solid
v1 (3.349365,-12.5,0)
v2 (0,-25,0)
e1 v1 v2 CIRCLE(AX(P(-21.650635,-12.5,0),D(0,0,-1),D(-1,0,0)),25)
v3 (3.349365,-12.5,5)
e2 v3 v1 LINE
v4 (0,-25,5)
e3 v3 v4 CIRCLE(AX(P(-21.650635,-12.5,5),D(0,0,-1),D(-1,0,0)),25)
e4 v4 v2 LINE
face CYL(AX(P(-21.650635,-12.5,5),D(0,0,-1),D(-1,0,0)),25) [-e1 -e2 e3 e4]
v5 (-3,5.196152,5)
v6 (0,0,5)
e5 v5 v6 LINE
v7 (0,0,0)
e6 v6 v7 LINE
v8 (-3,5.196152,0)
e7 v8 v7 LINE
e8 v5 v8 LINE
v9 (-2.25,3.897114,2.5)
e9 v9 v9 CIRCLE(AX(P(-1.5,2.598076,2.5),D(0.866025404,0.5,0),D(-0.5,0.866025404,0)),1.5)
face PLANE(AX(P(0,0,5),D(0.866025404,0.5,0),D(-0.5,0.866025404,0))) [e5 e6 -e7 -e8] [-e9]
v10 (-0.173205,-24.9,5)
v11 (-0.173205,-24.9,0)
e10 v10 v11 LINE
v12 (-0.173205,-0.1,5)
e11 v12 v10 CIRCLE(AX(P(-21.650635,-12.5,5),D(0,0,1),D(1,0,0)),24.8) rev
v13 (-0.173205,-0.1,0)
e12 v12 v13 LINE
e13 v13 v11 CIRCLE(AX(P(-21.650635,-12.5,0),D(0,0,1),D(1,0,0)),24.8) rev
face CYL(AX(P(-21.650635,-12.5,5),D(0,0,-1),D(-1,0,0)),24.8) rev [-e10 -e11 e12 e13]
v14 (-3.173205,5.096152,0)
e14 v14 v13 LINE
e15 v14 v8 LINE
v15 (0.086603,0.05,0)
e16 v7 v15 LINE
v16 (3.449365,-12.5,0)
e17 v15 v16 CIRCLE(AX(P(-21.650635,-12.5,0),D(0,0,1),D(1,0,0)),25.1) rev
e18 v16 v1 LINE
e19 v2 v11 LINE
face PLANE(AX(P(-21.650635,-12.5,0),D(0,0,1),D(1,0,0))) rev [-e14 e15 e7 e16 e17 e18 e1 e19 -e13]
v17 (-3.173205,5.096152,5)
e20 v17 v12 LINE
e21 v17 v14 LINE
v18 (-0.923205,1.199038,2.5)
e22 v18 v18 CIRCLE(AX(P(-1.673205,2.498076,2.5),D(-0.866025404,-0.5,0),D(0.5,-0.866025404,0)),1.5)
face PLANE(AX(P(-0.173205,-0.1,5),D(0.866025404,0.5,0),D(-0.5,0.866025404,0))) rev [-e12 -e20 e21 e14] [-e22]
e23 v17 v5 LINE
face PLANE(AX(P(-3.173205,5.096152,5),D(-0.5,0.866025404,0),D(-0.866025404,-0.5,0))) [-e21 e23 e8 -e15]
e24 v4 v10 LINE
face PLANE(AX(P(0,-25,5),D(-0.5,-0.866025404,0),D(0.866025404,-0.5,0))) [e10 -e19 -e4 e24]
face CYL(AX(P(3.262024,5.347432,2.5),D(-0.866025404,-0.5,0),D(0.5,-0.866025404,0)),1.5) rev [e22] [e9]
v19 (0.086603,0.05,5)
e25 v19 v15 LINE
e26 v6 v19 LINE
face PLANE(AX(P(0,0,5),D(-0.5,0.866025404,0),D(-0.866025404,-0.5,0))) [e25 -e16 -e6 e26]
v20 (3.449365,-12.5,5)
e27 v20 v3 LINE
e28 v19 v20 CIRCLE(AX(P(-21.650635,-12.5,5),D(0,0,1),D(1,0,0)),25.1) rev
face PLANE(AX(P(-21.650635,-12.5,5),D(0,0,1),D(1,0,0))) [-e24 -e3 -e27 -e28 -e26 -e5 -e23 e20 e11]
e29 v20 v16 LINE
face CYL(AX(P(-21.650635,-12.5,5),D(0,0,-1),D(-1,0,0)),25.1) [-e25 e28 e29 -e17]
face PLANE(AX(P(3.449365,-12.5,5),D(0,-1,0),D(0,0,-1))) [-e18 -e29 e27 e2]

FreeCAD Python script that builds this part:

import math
import FreeCAD as App
import Part
import Sketcher
Q = App.Units.Quantity

doc = App.newDocument("Part")
body = doc.addObject("PartDesign::Body", "Body")

# Sketch on XY plane
sketch1 = body.newObject("Sketcher::SketchObject", "Sketch")
sketch1.AttachmentSupport = (doc.getObject("XY_Plane"), [""])
sketch1.MapMode = "FlatFace"
sketch1.addGeometry([
    Part.ArcOfCircle(Part.Circle(App.Vector(-21.65, -12.5, 0), App.Vector(0, 0, 1), 25), math.radians(-30), math.radians(30)),  # 0
    Part.LineSegment(App.Vector(0, 0, 0), App.Vector(-3, 5.2, 0)),  # 1
    Part.LineSegment(App.Vector(-3, 5.2, 0), App.Vector(-3.17, 5.1, 0)),  # 2
    Part.LineSegment(App.Vector(-3.17, 5.1, 0), App.Vector(-0.17, -0.1, 0)),  # 3
    Part.ArcOfCircle(Part.Circle(App.Vector(-21.65, -12.5, 0), App.Vector(0, 0, 1), 24.8), math.radians(-30), math.radians(30)),  # 4
    Part.LineSegment(App.Vector(-0.17, -24.9, 0), App.Vector(0, -25, 0)),  # 5
], False)
sketch1.addConstraint([
    Sketcher.Constraint("Tangent", 0, 2, 1, 1),
    Sketcher.Constraint("Coincident", 1, 2, 2, 1),
    Sketcher.Constraint("Coincident", 2, 2, 3, 1),
    Sketcher.Constraint("Tangent", 3, 2, 4, 2),
    Sketcher.Constraint("Coincident", 4, 1, 5, 1),
    Sketcher.Constraint("Coincident", 5, 2, 0, 1),
    Sketcher.Constraint("Coincident", 0, 2, -1, 1),
    Sketcher.Constraint("Coincident", 4, 3, 0, 3),
    Sketcher.Constraint("PointOnObject", 5, 2, -2),
    Sketcher.Constraint("Perpendicular", 1, 2),
    Sketcher.Constraint("Perpendicular", 2, 3),
    Sketcher.Constraint("Vertical", 3, 2, 4, 1),
    Sketcher.Constraint("Radius", 0, Q("25 mm")),
    Sketcher.Constraint("Radius", 4, Q("24.8 mm")),
    Sketcher.Constraint("Angle", 1, Q("120 deg")),
    Sketcher.Constraint("Distance", 1, Q("6 mm")),
])
pad1 = body.newObject("PartDesign::Pad", "Pad")
pad1.Profile = sketch1
pad1.Length = 5

# Sketch on an angled plane
sketch2 = body.newObject("Sketcher::SketchObject", "Sketch001")
sketch2.Placement = App.Placement(App.Vector(-0.173205, -0.1, 0), App.Rotation(App.Vector(0, 0, 1), App.Vector(-0.5, 0.866025404, 0), App.Vector(-0.866025404, -0.5, 0), "ZXY"))
sketch2.addGeometry(Part.Circle(App.Vector(2.5, 3, 0), App.Vector(0, 0, 1), 1.5), False)
sketch2.addConstraint([
    Sketcher.Constraint("Diameter", 0, Q("3 mm")),
    Sketcher.Constraint("DistanceY", -1, 1, 0, 3, Q("3 mm")),
    Sketcher.Constraint("DistanceX", -1, 1, 0, 3, Q("2.5 mm")),
])
pocket1 = body.newObject("PartDesign::Pocket", "Pocket")
pocket1.Profile = sketch2
pocket1.Type = "ThroughAll"

# Sketch on XY plane
sketch3 = body.newObject("Sketcher::SketchObject", "Sketch002")
sketch3.AttachmentSupport = (doc.getObject("XY_Plane"), [""])
sketch3.MapMode = "FlatFace"
sketch3.addGeometry([
    Part.ArcOfCircle(Part.Circle(App.Vector(-21.65, -12.5, 0), App.Vector(0, 0, 1), 25), math.radians(0), math.radians(30)),
    Part.LineSegment(App.Vector(3.35, -12.5, 0), App.Vector(3.45, -12.5, 0)),
    Part.ArcOfCircle(Part.Circle(App.Vector(-21.65, -12.5, 0), App.Vector(0, 0, 1), 25.1), math.radians(0), math.radians(30)),
    Part.LineSegment(App.Vector(0.09, 0.05, 0), App.Vector(0, 0, 0)),
], False)
sketch3.addConstraint([
    Sketcher.Constraint("Coincident", 0, 1, 1, 1),
    Sketcher.Constraint("Coincident", 1, 2, 2, 1),
    Sketcher.Constraint("Coincident", 2, 2, 3, 1),
    Sketcher.Constraint("Coincident", 3, 2, 0, 2),
    Sketcher.Constraint("Horizontal", 1),
    Sketcher.Constraint("Coincident", 3, 2, -1, 1),
    Sketcher.Constraint("Coincident", 2, 3, 0, 3),
    Sketcher.Constraint("Horizontal", 2, 3, 0, 1),
    Sketcher.Constraint("Radius", 0, Q("25 mm")),
    Sketcher.Constraint("Radius", 2, Q("25.1 mm")),
    Sketcher.Constraint("Angle", 3, Q("-150 deg")),
    Sketcher.Constraint("DistanceY", 0, 3, -1, 1, Q("12.5 mm")),
])
pad2 = body.newObject("PartDesign::Pad", "Pad001")
pad2.Profile = sketch3
pad2.Length = 5

doc.recompute()
